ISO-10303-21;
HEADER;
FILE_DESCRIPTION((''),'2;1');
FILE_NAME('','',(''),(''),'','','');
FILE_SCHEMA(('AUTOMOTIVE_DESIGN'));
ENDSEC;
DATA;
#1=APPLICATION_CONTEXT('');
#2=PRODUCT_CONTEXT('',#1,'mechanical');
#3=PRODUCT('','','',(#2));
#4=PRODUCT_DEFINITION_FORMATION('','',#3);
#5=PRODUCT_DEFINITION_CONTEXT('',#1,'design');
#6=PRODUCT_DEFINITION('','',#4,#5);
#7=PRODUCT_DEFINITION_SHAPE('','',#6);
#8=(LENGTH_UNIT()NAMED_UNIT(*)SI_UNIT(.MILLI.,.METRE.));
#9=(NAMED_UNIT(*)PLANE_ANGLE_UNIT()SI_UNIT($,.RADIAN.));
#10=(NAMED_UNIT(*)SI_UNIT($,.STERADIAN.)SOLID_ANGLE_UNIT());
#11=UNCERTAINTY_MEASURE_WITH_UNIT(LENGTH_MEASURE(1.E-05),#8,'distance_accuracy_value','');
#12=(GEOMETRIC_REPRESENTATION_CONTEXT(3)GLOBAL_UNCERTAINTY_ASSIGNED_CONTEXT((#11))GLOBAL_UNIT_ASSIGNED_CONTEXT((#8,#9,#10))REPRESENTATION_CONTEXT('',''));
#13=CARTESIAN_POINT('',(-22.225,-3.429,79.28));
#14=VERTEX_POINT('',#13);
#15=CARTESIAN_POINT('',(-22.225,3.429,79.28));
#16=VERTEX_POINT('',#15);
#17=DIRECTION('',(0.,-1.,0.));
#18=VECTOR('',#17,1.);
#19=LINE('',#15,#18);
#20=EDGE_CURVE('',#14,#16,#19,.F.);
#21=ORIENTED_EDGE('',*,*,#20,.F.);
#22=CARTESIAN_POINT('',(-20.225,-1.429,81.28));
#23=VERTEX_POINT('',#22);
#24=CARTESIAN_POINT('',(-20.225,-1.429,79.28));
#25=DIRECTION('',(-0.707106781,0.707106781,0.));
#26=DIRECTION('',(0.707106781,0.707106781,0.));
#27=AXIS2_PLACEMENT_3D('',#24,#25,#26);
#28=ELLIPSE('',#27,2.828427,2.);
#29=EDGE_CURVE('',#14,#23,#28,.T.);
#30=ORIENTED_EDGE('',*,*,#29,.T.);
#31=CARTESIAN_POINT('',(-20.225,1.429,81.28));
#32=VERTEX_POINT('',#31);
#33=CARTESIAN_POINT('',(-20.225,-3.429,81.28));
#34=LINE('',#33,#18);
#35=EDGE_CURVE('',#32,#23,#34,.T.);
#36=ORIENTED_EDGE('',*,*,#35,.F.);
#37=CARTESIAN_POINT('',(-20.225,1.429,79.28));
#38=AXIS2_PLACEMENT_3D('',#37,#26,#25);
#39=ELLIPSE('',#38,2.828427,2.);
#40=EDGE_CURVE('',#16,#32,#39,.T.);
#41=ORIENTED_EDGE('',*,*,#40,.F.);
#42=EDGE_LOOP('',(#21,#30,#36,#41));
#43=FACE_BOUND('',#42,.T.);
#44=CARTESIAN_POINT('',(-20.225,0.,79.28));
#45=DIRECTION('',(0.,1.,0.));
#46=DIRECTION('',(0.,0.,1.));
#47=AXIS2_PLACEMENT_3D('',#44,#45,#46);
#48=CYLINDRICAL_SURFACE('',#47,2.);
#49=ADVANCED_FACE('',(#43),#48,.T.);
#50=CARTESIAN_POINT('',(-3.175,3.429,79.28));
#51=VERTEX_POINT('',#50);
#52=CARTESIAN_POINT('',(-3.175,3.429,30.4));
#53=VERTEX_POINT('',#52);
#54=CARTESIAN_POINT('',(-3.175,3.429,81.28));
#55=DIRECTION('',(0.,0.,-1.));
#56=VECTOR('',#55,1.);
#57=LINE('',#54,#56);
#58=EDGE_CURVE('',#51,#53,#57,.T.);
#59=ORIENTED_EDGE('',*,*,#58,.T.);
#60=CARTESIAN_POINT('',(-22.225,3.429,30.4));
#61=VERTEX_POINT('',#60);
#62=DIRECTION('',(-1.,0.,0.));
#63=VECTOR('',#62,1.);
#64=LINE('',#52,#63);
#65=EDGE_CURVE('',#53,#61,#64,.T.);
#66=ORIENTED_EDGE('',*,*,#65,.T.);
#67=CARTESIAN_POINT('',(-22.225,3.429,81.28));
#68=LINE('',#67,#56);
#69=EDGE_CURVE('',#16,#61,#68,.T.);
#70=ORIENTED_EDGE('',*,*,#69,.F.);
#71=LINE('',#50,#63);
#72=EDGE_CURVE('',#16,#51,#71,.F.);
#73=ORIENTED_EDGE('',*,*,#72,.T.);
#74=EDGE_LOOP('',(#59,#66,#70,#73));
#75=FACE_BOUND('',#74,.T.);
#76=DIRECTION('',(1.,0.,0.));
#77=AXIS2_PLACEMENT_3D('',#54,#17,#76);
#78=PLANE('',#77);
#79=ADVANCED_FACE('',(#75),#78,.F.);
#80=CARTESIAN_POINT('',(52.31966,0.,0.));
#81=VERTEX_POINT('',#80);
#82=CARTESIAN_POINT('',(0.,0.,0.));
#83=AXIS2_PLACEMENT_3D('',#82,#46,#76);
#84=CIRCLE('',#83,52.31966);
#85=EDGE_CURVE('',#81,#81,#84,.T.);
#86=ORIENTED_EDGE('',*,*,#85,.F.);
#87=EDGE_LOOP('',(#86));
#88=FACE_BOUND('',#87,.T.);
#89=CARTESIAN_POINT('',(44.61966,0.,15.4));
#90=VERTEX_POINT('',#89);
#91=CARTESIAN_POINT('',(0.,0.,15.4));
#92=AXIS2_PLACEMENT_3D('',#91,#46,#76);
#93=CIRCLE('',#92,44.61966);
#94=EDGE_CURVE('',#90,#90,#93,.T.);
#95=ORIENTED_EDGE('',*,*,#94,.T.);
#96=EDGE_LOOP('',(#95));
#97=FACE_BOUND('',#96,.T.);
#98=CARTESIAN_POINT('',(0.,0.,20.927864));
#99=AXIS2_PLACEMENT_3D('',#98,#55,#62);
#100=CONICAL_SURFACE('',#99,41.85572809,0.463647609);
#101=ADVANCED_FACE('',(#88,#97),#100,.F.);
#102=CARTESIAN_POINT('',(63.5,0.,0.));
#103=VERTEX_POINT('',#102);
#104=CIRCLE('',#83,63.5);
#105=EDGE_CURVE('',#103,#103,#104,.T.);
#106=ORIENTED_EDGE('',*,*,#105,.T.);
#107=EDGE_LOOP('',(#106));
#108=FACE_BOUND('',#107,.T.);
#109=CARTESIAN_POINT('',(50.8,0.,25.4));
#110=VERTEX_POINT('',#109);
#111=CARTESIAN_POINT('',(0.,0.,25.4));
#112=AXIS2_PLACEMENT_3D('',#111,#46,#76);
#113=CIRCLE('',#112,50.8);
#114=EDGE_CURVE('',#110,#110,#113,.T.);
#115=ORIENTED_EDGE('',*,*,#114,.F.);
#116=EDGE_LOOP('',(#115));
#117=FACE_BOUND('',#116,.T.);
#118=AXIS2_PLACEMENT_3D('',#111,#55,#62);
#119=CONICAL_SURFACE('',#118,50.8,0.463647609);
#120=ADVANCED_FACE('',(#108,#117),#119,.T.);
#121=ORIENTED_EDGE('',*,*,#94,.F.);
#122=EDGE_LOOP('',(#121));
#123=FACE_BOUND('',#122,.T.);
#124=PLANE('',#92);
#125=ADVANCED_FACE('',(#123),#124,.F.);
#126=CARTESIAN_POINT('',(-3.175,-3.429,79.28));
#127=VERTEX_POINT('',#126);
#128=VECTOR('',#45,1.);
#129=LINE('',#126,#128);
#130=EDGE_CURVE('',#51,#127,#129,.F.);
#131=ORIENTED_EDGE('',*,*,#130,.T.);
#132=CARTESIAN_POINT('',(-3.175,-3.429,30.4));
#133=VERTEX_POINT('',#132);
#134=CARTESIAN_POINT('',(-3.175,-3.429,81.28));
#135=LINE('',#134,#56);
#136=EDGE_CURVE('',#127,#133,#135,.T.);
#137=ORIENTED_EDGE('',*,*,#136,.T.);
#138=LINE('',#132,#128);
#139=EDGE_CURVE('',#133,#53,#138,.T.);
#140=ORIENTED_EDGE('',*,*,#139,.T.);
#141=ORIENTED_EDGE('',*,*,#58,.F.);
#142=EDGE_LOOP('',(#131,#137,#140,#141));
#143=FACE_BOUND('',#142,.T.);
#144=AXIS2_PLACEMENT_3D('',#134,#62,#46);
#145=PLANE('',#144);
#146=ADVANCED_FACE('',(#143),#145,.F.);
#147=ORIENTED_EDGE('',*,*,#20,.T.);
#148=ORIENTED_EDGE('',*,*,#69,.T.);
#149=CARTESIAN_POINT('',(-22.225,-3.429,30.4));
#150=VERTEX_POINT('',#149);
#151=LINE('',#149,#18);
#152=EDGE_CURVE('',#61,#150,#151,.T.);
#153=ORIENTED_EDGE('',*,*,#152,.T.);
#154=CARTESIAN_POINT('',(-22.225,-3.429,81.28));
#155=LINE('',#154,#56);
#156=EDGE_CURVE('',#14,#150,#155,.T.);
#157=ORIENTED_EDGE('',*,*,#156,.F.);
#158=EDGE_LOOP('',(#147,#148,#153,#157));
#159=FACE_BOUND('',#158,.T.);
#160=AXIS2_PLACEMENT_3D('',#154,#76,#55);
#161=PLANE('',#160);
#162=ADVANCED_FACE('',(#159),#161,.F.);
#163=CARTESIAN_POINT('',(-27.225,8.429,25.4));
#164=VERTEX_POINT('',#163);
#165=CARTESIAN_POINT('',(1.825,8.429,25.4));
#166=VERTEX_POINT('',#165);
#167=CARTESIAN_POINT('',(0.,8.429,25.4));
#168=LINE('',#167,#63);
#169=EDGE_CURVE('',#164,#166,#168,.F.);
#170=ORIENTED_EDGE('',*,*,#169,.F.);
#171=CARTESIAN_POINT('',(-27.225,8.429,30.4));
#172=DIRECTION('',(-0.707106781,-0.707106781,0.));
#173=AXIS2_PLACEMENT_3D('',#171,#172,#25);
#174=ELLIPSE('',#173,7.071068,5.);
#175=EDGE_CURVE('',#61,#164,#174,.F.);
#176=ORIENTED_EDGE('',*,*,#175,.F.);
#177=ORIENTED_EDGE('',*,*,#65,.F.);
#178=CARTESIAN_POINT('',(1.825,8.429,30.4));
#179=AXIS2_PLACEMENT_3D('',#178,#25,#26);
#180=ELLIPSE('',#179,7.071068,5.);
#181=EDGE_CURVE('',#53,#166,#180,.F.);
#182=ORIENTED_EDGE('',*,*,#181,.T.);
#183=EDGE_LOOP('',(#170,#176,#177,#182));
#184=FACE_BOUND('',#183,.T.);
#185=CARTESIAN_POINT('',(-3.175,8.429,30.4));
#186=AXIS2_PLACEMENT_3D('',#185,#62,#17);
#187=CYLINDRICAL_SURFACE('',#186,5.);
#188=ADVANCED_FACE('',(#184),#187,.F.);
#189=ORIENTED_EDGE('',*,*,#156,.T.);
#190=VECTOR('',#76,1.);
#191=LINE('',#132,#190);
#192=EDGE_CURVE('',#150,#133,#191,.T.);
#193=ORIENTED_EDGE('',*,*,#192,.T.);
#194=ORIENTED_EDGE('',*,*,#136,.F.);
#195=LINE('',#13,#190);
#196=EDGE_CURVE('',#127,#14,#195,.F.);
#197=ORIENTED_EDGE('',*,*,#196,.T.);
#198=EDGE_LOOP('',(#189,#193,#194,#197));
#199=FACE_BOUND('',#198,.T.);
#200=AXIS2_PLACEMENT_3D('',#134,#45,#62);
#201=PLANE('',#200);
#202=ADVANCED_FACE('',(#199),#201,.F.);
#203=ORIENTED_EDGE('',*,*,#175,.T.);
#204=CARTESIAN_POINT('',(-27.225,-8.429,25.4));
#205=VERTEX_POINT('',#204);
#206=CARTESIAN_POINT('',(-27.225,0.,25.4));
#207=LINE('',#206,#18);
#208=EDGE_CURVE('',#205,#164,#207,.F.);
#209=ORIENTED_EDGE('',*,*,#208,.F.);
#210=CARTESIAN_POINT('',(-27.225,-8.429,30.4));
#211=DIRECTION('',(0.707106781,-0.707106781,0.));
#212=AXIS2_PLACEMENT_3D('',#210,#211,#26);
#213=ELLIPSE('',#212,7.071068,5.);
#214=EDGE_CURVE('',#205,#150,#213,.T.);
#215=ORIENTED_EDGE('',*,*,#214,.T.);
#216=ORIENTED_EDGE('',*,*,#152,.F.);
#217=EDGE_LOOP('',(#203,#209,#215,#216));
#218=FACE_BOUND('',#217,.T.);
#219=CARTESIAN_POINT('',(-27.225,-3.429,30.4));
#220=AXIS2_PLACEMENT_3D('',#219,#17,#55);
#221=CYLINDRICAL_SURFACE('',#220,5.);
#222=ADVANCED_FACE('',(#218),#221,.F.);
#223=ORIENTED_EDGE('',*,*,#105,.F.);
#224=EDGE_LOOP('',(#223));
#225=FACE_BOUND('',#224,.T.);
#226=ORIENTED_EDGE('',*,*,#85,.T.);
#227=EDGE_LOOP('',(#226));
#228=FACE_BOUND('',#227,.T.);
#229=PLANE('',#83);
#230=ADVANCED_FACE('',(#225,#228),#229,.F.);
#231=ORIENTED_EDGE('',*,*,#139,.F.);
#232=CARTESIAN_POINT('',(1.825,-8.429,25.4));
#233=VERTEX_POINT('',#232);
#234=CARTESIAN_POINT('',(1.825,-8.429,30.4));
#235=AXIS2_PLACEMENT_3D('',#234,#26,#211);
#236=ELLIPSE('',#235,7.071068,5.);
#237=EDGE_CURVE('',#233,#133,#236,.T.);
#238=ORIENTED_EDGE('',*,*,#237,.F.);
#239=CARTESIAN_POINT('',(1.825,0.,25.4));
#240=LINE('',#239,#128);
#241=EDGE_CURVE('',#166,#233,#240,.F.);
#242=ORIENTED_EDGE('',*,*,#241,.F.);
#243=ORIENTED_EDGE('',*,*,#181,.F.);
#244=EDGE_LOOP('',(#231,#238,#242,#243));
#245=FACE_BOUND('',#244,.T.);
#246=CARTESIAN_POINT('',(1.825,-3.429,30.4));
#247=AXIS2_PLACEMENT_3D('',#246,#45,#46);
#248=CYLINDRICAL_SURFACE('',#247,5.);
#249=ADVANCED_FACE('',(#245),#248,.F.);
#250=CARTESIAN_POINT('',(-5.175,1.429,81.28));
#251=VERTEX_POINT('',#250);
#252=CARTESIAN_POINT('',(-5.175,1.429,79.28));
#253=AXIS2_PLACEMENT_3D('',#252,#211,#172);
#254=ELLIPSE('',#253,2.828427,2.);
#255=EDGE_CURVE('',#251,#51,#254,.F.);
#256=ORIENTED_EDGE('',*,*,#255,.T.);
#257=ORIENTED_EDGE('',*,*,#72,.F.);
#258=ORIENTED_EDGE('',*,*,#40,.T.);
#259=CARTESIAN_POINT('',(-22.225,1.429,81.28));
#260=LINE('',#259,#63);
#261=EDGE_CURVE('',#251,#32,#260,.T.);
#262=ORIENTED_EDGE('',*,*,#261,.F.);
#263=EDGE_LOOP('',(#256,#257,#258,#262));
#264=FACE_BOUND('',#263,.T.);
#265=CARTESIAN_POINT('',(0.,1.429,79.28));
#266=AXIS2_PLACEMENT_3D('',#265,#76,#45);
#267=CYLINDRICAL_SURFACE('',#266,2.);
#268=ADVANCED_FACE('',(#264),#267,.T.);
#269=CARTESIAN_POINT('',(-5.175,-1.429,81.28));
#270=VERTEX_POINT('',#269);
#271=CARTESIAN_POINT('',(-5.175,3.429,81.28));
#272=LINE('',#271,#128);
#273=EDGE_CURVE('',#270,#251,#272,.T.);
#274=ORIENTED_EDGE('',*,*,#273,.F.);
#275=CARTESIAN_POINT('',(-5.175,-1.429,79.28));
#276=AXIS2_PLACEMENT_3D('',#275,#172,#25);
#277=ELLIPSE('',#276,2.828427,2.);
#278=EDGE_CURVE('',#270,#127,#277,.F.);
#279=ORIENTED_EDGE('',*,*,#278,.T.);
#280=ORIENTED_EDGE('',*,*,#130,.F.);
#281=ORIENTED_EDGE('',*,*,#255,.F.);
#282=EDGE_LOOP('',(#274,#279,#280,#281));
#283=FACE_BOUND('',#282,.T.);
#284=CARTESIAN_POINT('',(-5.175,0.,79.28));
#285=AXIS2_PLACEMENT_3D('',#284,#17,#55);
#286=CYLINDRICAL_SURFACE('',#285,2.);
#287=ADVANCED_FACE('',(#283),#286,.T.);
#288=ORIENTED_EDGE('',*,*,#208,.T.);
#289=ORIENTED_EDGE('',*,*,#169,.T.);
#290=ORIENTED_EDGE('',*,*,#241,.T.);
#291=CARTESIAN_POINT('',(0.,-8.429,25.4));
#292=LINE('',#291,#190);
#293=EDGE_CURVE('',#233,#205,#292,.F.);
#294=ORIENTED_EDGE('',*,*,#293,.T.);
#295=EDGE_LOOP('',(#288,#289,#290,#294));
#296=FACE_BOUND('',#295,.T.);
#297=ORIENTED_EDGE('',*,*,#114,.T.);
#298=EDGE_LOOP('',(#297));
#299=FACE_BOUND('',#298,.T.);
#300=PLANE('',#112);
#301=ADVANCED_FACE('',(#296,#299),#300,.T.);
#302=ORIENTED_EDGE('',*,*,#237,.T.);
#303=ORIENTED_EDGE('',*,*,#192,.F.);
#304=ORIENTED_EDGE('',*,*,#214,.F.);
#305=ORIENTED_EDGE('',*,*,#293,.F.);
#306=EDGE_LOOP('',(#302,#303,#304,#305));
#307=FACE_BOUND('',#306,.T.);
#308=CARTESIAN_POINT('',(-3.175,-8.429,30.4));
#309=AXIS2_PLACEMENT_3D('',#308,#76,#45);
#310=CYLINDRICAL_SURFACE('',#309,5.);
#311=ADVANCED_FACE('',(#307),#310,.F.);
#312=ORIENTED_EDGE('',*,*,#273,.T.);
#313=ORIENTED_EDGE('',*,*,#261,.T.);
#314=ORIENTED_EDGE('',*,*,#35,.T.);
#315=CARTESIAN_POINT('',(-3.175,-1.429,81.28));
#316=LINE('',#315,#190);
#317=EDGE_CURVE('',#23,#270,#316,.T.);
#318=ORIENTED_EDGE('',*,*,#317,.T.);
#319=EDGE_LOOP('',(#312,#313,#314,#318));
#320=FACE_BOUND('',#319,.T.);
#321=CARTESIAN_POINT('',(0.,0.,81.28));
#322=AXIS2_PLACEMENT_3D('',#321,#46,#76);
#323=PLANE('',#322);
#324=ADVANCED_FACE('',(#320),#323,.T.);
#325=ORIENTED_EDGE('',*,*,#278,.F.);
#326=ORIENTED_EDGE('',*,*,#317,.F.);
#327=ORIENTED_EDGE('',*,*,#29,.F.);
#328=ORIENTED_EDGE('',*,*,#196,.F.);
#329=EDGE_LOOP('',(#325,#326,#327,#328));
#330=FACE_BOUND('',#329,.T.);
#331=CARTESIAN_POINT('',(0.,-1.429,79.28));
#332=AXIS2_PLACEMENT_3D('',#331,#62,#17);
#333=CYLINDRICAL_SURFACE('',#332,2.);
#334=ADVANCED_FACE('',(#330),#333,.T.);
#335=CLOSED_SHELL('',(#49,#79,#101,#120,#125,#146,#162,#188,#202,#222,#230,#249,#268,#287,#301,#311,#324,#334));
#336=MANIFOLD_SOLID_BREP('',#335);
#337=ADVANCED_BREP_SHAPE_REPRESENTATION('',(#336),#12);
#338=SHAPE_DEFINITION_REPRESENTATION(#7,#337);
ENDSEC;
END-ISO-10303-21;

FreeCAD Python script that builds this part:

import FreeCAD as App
import Part
import Sketcher
from FreeCAD import Vector
Q = App.Units.Quantity


def edges_at(feature, points):
    """Names of the edges that pass closest to the given points."""
    edges = feature.Shape.Edges
    near = lambda p: min(range(len(edges)), key=lambda i: edges[i].distToShape(Part.Vertex(*p))[0])
    return sorted({f"Edge{near(p) + 1}" for p in points})


def faces_at(feature, points):
    """Names of the faces that lie closest to the given points."""
    faces = feature.Shape.Faces
    near = lambda p: min(range(len(faces)), key=lambda i: faces[i].distToShape(Part.Vertex(*p))[0])
    return sorted({f"Face{near(p) + 1}" for p in points})

doc = App.newDocument("Part")
params = doc.addObject("Spreadsheet::Sheet", "Params")
for row, (alias, value) in enumerate([
    ("sketch1_diameter", "5 in"),
    ("sketch2_diameter", "4 in"),
    ("thickness_wall", "10 mm"),
    ("sketch3_width", "0.75 in"),
    ("sketch3_height", "0.27 in"),
    ("pad1_length", "2.2 in"),
    ("fillet_radius", "2 mm"),
    ("fillet2_radius", "5 mm"),
], start=1):
    params.set(f"A{row}", alias)
    params.set(f"B{row}", "=" + value)
    params.setAlias(f"B{row}", alias)

body = doc.addObject("PartDesign::Body", "Body")

sketch1 = body.newObject("Sketcher::SketchObject", "Sketch")
sketch1.AttachmentSupport = (doc.getObject("XY_Plane"), [""])
sketch1.MapMode = "FlatFace"
sketch1.addGeometry(Part.Circle(Vector(0, 0, 0), Vector(0, 0, 1), 63.5), False)
sketch1.addConstraint([
    Sketcher.Constraint("Coincident", 0, 3, -1, 1),
    Sketcher.Constraint("Diameter", 0, Q("5 in")),
])
sketch1.setExpression("Constraints[1]", "Params.sketch1_diameter")

sketch2 = body.newObject("Sketcher::SketchObject", "Sketch001")
sketch2.AttachmentSupport = (doc.getObject("XY_Plane"), [""])
sketch2.MapMode = "FlatFace"
sketch2.AttachmentOffset = App.Placement(Vector(0, 0, 1 * 25.4), App.Rotation())
sketch2.addGeometry(Part.Circle(Vector(0, 0, 0), Vector(0, 0, 1), 50.8), False)
sketch2.addConstraint([
    Sketcher.Constraint("Coincident", 0, 3, -1, 1),
    Sketcher.Constraint("Diameter", 0, Q("4 in")),
])
sketch2.setExpression("Constraints[1]", "Params.sketch2_diameter")

additiveloft = body.newObject("PartDesign::AdditiveLoft", "AdditiveLoft")
additiveloft.Profile = sketch1
additiveloft.Sections = [sketch2]
doc.recompute()

thickness = body.newObject("PartDesign::Thickness", "Thickness")
thickness.Base = (additiveloft, faces_at(additiveloft, [(0, 0, 0)]))
thickness.setExpression("Value", "Params.thickness_wall")
thickness.Reversed = True
thickness.Join = "Intersection"

sketch3 = body.newObject("Sketcher::SketchObject", "Sketch002")
sketch3.AttachmentSupport = (doc.getObject("XY_Plane"), [""])
sketch3.MapMode = "FlatFace"
sketch3.AttachmentOffset = App.Placement(Vector(0, 0, 1 * 25.4), App.Rotation())
sketch3.addGeometry([
    Part.LineSegment(Vector(-22.225, 3.429, 0), Vector(-22.225, -3.429, 0)),
    Part.LineSegment(Vector(-22.225, -3.429, 0), Vector(-3.175, -3.429, 0)),
    Part.LineSegment(Vector(-3.175, -3.429, 0), Vector(-3.175, 3.429, 0)),
    Part.LineSegment(Vector(-3.175, 3.429, 0), Vector(-22.225, 3.429, 0)),
], False)
sketch3.addConstraint([
    Sketcher.Constraint("Coincident", 0, 2, 1, 1),
    Sketcher.Constraint("Coincident", 1, 2, 2, 1),
    Sketcher.Constraint("Coincident", 2, 2, 3, 1),
    Sketcher.Constraint("Coincident", 3, 2, 0, 1),
    Sketcher.Constraint("Vertical", 0),
    Sketcher.Constraint("Horizontal", 1),
    Sketcher.Constraint("Vertical", 2),
    Sketcher.Constraint("Horizontal", 3),
    Sketcher.Constraint("DistanceX", 1, 1, 1, 2, Q("0.75 in")),
    Sketcher.Constraint("DistanceY", 0, 2, 0, 1, Q("0.27 in")),
    Sketcher.Constraint("DistanceX", 0, 2, -1, 1, Q("0.875 in")),
    Sketcher.Constraint("DistanceY", 0, 2, -1, 1, Q("0.135 in")),
])
sketch3.setExpression("Constraints[8]", "Params.sketch3_width")
sketch3.setExpression("Constraints[9]", "Params.sketch3_height")
pad1 = body.newObject("PartDesign::Pad", "Pad")
pad1.Profile = sketch3
pad1.setExpression("Length", "Params.pad1_length")
doc.recompute()

fillet = body.newObject("PartDesign::Fillet", "Fillet")
fillet.Base = (pad1, edges_at(pad1, [
    (-22.225, 0, 81.28),
    (-12.7, -3.429, 81.28),
    (-3.175, 0, 81.28),
    (-12.7, 3.429, 81.28),
]))
fillet.setExpression("Radius", "Params.fillet_radius")
doc.recompute()

fillet2 = body.newObject("PartDesign::Fillet", "Fillet001")
fillet2.Base = (fillet, edges_at(fillet, [
    (-22.225, 0, 25.4),
    (-12.7, -3.429, 25.4),
    (-3.175, 0, 25.4),
    (-12.7, 3.429, 25.4),
]))
fillet2.setExpression("Radius", "Params.fillet2_radius")

doc.recompute()
